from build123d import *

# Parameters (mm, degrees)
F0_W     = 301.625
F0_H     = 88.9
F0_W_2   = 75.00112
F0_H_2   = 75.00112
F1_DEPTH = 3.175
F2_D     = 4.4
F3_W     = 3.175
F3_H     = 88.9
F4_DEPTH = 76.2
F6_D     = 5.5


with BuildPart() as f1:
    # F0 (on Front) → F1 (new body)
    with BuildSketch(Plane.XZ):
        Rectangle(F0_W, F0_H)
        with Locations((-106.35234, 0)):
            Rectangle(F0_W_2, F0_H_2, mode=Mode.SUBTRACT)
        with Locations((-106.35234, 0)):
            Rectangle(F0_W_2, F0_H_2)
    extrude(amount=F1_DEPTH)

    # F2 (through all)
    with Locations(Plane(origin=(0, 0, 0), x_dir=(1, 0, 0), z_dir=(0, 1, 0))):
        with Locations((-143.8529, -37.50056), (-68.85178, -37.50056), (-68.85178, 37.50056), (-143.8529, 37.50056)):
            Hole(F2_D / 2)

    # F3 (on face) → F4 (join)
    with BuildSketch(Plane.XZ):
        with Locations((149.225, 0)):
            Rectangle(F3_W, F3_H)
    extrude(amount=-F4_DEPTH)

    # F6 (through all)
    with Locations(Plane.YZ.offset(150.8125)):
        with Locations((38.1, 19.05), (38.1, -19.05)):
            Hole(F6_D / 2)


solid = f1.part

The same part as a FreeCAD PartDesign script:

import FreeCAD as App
import Part
import Sketcher
from FreeCAD import Vector
Q = App.Units.Quantity

doc = App.newDocument("Part")
body = doc.addObject("PartDesign::Body", "Body")

# Sketch on XZ plane
sketch1 = body.newObject("Sketcher::SketchObject", "Sketch")
sketch1.AttachmentSupport = (doc.getObject("XZ_Plane"), [""])
sketch1.MapMode = "FlatFace"
sketch1.addGeometry([
    Part.LineSegment(Vector(-151, 44, 0), Vector(-151, -44, 0)),
    Part.LineSegment(Vector(-151, -44, 0), Vector(151, -44, 0)),
    Part.LineSegment(Vector(151, -44, 0), Vector(151, 44, 0)),
    Part.LineSegment(Vector(151, 44, 0), Vector(-151, 44, 0)),
], False)
sketch1.addConstraint([
    Sketcher.Constraint("Coincident", 0, 2, 1, 1),
    Sketcher.Constraint("Coincident", 1, 2, 2, 1),
    Sketcher.Constraint("Coincident", 2, 2, 3, 1),
    Sketcher.Constraint("Coincident", 3, 2, 0, 1),
    Sketcher.Constraint("Vertical", 0),
    Sketcher.Constraint("Horizontal", 1),
    Sketcher.Constraint("Vertical", 2),
    Sketcher.Constraint("Horizontal", 3),
    Sketcher.Constraint("Symmetric", 0, 2, 2, 2, -1, 1),
    Sketcher.Constraint("DistanceY", 0, 2, 0, 1, Q("3.5 in")),
    Sketcher.Constraint("DistanceX", 1, 1, 1, 2, Q("11.875 in")),
])
pad1 = body.newObject("PartDesign::Pad", "Pad")
pad1.Profile = sketch1
pad1.Length = Q("0.125 in")

# Sketch on XZ plane
sketch2 = body.newObject("Sketcher::SketchObject", "Sketch001")
sketch2.AttachmentSupport = (doc.getObject("XZ_Plane"), [""])
sketch2.MapMode = "FlatFace"
sketch2.addGeometry([
    Part.Circle(Vector(-143.9, 37.5, 0), Vector(0, 0, 1), 2.2),
    Part.Circle(Vector(-68.9, 37.5, 0), Vector(0, 0, 1), 2.2),
    Part.Circle(Vector(-68.9, -37.5, 0), Vector(0, 0, 1), 2.2),
    Part.Circle(Vector(-143.9, -37.5, 0), Vector(0, 0, 1), 2.2),
], False)
sketch2.addConstraint([
    Sketcher.Constraint("Equal", 0, 1),
    Sketcher.Constraint("Equal", 1, 2),
    Sketcher.Constraint("Equal", 2, 3),
    Sketcher.Constraint("Symmetric", 1, 3, 2, 3, -1),
    Sketcher.Constraint("Symmetric", 0, 3, 3, 3, -1),
    Sketcher.Constraint("Horizontal", 0, 3, 1, 3),
    Sketcher.Constraint("Diameter", 0, Q("4.4 mm")),
    Sketcher.Constraint("DistanceX", 0, 3, -1, 1, Q("5.6635 in")),
    Sketcher.Constraint("DistanceY", -1, 1, 0, 3, Q("1.4764 in")),
    Sketcher.Constraint("DistanceX", 1, 3, -1, 1, Q("2.7107 in")),
])
doc.recompute()
hole = body.newObject("PartDesign::Hole", "Hole")
hole.Profile = sketch2
hole.ThreadType = "None"
hole.Diameter = 4.4
hole.DepthType = "ThroughAll"
hole.Reversed = True

# Sketch on XZ plane
sketch3 = body.newObject("Sketcher::SketchObject", "Sketch002")
sketch3.AttachmentSupport = (doc.getObject("XZ_Plane"), [""])
sketch3.MapMode = "FlatFace"
sketch3.addGeometry([
    Part.LineSegment(Vector(147.6, 44.5, 0), Vector(147.6, -44.5, 0)),
    Part.LineSegment(Vector(147.6, -44.5, 0), Vector(150.8, -44.5, 0)),
    Part.LineSegment(Vector(150.8, -44.5, 0), Vector(150.8, 44.5, 0)),
    Part.LineSegment(Vector(150.8, 44.5, 0), Vector(147.6, 44.5, 0)),
], False)
sketch3.addConstraint([
    Sketcher.Constraint("Coincident", 0, 2, 1, 1),
    Sketcher.Constraint("Coincident", 1, 2, 2, 1),
    Sketcher.Constraint("Coincident", 2, 2, 3, 1),
    Sketcher.Constraint("Coincident", 3, 2, 0, 1),
    Sketcher.Constraint("Vertical", 0),
    Sketcher.Constraint("Horizontal", 1),
    Sketcher.Constraint("Vertical", 2),
    Sketcher.Constraint("Horizontal", 3),
    Sketcher.Constraint("DistanceY", 0, 2, 0, 1, Q("3.5 in")),
    Sketcher.Constraint("DistanceX", 1, 1, 1, 2, Q("0.125 in")),
    Sketcher.Constraint("DistanceY", 0, 2, -1, 1, Q("1.75 in")),
    Sketcher.Constraint("DistanceX", -1, 1, 0, 2, Q("5.8125 in")),
])
pad2 = body.newObject("PartDesign::Pad", "Pad001")
pad2.Profile = sketch3
pad2.Length = Q("3 in")
pad2.Reversed = True

# Sketch on YZ plane
sketch4 = body.newObject("Sketcher::SketchObject", "Sketch003")
sketch4.AttachmentSupport = (doc.getObject("YZ_Plane"), [""])
sketch4.MapMode = "FlatFace"
sketch4.AttachmentOffset = App.Placement(Vector(0, 0, 5.9375 * 25.4), App.Rotation())
sketch4.addGeometry([
    Part.Circle(Vector(38.1, 19.1, 0), Vector(0, 0, 1), 2.8),
    Part.Circle(Vector(38.1, -19.1, 0), Vector(0, 0, 1), 2.8),
], False)
sketch4.addConstraint([
    Sketcher.Constraint("Equal", 0, 1),
    Sketcher.Constraint("Symmetric", 0, 3, 1, 3, -1),
    Sketcher.Constraint("DistanceX", -1, 1, 0, 3, Q("1.5 in")),
    Sketcher.Constraint("DistanceY", 1, 3, 0, 3, Q("1.5 in")),
    Sketcher.Constraint("Diameter", 0, Q("5.5 mm")),
])
doc.recompute()
hole2 = body.newObject("PartDesign::Hole", "Hole001")
hole2.Profile = sketch4
hole2.ThreadType = "None"
hole2.Diameter = 5.5
hole2.DepthType = "ThroughAll"

doc.recompute()
